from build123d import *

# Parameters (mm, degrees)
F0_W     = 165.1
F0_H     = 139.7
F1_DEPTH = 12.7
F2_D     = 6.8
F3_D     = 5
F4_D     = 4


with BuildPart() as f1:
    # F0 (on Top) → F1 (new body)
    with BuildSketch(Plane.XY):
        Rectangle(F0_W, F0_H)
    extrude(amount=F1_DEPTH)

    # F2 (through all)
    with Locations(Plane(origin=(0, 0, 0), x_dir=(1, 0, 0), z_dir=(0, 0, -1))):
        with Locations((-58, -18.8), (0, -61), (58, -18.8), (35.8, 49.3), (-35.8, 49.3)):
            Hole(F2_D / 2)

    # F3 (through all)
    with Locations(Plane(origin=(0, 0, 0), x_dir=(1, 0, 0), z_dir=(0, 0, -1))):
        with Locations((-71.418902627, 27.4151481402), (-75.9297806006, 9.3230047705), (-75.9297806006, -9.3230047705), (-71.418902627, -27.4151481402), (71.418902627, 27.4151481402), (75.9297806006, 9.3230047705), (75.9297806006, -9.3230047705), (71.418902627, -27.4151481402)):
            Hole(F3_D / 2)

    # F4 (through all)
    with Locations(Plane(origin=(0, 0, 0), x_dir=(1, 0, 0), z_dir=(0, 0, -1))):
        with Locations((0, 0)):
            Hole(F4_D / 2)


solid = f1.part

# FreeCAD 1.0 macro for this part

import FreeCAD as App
import Part
import Sketcher
from FreeCAD import Vector

doc = App.newDocument("Part")
body = doc.addObject("PartDesign::Body", "Body")

# Sketch on XY plane
sketch1 = body.newObject("Sketcher::SketchObject", "Sketch")
sketch1.AttachmentSupport = (doc.getObject("XY_Plane"), [""])
sketch1.MapMode = "FlatFace"
sketch1.addGeometry([
    Part.LineSegment(Vector(-82.55, 69.85, 0), Vector(-82.55, -69.85, 0)),
    Part.LineSegment(Vector(-82.55, -69.85, 0), Vector(82.55, -69.85, 0)),
    Part.LineSegment(Vector(82.55, -69.85, 0), Vector(82.55, 69.85, 0)),
    Part.LineSegment(Vector(82.55, 69.85, 0), Vector(-82.55, 69.85, 0)),
], False)
sketch1.addConstraint([
    Sketcher.Constraint("Coincident", 0, 2, 1, 1),
    Sketcher.Constraint("Coincident", 1, 2, 2, 1),
    Sketcher.Constraint("Coincident", 2, 2, 3, 1),
    Sketcher.Constraint("Coincident", 3, 2, 0, 1),
    Sketcher.Constraint("Vertical", 0),
    Sketcher.Constraint("Horizontal", 1),
    Sketcher.Constraint("Vertical", 2),
    Sketcher.Constraint("Horizontal", 3),
    Sketcher.Constraint("Symmetric", 0, 2, 2, 2, -1, 1),
    Sketcher.Constraint("DistanceX", 1, 1, 1, 2, 165.1),
    Sketcher.Constraint("DistanceY", 0, 2, 0, 1, 139.7),
])
pad1 = body.newObject("PartDesign::Pad", "Pad")
pad1.Profile = sketch1
pad1.Length = 12.7

# Sketch on XY plane
sketch2 = body.newObject("Sketcher::SketchObject", "Sketch001")
sketch2.AttachmentSupport = (doc.getObject("XY_Plane"), [""])
sketch2.MapMode = "FlatFace"
sketch2.addGeometry([
    Part.Circle(Vector(-58, 18.8, 0), Vector(0, 0, 1), 3.4),  # 0
    Part.Circle(Vector(0, 61, 0), Vector(0, 0, 1), 3.4),  # 1
    Part.Circle(Vector(58, 18.8, 0), Vector(0, 0, 1), 3.4),  # 2
    Part.Circle(Vector(35.8, -49.3, 0), Vector(0, 0, 1), 3.4),  # 3
    Part.Circle(Vector(-35.8, -49.3, 0), Vector(0, 0, 1), 3.4),  # 4
], False)
sketch2.addConstraint([
    Sketcher.Constraint("Equal", 0, 1),
    Sketcher.Constraint("Equal", 1, 2),
    Sketcher.Constraint("Equal", 2, 3),
    Sketcher.Constraint("Equal", 3, 4),
    Sketcher.Constraint("Symmetric", 0, 3, 2, 3, -2),
    Sketcher.Constraint("Symmetric", 3, 3, 4, 3, -2),
    Sketcher.Constraint("PointOnObject", 1, 3, -2),
    Sketcher.Constraint("Diameter", 0, 6.8),
    Sketcher.Constraint("DistanceX", 0, 3, -1, 1, 58.0),
    Sketcher.Constraint("DistanceY", -1, 1, 1, 3, 61.0),
    Sketcher.Constraint("DistanceY", -1, 1, 0, 3, 18.8),
    Sketcher.Constraint("DistanceX", -1, 1, 3, 3, 35.8),
    Sketcher.Constraint("DistanceY", 3, 3, -1, 1, 49.3),
])
doc.recompute()
hole = body.newObject("PartDesign::Hole", "Hole")
hole.Profile = sketch2
hole.ThreadType = "None"
hole.Diameter = 6.8
hole.DepthType = "ThroughAll"
hole.Reversed = True

# Sketch on XY plane
sketch3 = body.newObject("Sketcher::SketchObject", "Sketch002")
sketch3.AttachmentSupport = (doc.getObject("XY_Plane"), [""])
sketch3.MapMode = "FlatFace"
sketch3.addGeometry([
    Part.Circle(Vector(-71.418903, -27.415148, 0), Vector(0, 0, 1), 2.5),  # 0
    Part.Circle(Vector(-75.929781, -9.323005, 0), Vector(0, 0, 1), 2.5),  # 1
    Part.Circle(Vector(-75.929781, 9.323005, 0), Vector(0, 0, 1), 2.5),  # 2
    Part.Circle(Vector(-71.418903, 27.415148, 0), Vector(0, 0, 1), 2.5),  # 3
    Part.Circle(Vector(71.418903, -27.415148, 0), Vector(0, 0, 1), 2.5),  # 4
    Part.Circle(Vector(75.929781, -9.323005, 0), Vector(0, 0, 1), 2.5),  # 5
    Part.Circle(Vector(75.929781, 9.323005, 0), Vector(0, 0, 1), 2.5),  # 6
    Part.Circle(Vector(71.418903, 27.415148, 0), Vector(0, 0, 1), 2.5),  # 7
], False)
sketch3.addConstraint([
    Sketcher.Constraint("Equal", 0, 1),
    Sketcher.Constraint("Equal", 1, 2),
    Sketcher.Constraint("Equal", 2, 3),
    Sketcher.Constraint("Equal", 3, 4),
    Sketcher.Constraint("Equal", 4, 5),
    Sketcher.Constraint("Equal", 5, 6),
    Sketcher.Constraint("Equal", 6, 7),
    Sketcher.Constraint("Symmetric", 3, 3, 4, 3, -1, 1),
    Sketcher.Constraint("Symmetric", 2, 3, 5, 3, -1, 1),
    Sketcher.Constraint("Symmetric", 1, 3, 6, 3, -1, 1),
    Sketcher.Constraint("Symmetric", 0, 3, 7, 3, -1, 1),
    Sketcher.Constraint("Symmetric", 0, 3, 4, 3, -2),
    Sketcher.Constraint("Symmetric", 1, 3, 5, 3, -2),
    Sketcher.Constraint("Diameter", 0, 5.0),
    Sketcher.Constraint("DistanceY", 0, 3, -1, 1, 27.415148),
    Sketcher.Constraint("DistanceX", 1, 3, -1, 1, 75.929781),
    Sketcher.Constraint("DistanceY", 1, 3, 2, 3, 18.64601),
    Sketcher.Constraint("DistanceX", 0, 3, -1, 1, 71.418903),
])
doc.recompute()
hole2 = body.newObject("PartDesign::Hole", "Hole001")
hole2.Profile = sketch3
hole2.ThreadType = "None"
hole2.Diameter = 5
hole2.DepthType = "ThroughAll"
hole2.Reversed = True

# Sketch on XY plane
sketch4 = body.newObject("Sketcher::SketchObject", "Sketch003")
sketch4.AttachmentSupport = (doc.getObject("XY_Plane"), [""])
sketch4.MapMode = "FlatFace"
sketch4.addGeometry(Part.Circle(Vector(0, 0, 0), Vector(0, 0, 1), 2), False)
sketch4.addConstraint([
    Sketcher.Constraint("Coincident", 0, 3, -1, 1),
    Sketcher.Constraint("Diameter", 0, 4.0),
])
doc.recompute()
hole3 = body.newObject("PartDesign::Hole", "Hole002")
hole3.Profile = sketch4
hole3.ThreadType = "None"
hole3.Diameter = 4
hole3.DepthType = "ThroughAll"
hole3.Reversed = True

doc.recompute()
